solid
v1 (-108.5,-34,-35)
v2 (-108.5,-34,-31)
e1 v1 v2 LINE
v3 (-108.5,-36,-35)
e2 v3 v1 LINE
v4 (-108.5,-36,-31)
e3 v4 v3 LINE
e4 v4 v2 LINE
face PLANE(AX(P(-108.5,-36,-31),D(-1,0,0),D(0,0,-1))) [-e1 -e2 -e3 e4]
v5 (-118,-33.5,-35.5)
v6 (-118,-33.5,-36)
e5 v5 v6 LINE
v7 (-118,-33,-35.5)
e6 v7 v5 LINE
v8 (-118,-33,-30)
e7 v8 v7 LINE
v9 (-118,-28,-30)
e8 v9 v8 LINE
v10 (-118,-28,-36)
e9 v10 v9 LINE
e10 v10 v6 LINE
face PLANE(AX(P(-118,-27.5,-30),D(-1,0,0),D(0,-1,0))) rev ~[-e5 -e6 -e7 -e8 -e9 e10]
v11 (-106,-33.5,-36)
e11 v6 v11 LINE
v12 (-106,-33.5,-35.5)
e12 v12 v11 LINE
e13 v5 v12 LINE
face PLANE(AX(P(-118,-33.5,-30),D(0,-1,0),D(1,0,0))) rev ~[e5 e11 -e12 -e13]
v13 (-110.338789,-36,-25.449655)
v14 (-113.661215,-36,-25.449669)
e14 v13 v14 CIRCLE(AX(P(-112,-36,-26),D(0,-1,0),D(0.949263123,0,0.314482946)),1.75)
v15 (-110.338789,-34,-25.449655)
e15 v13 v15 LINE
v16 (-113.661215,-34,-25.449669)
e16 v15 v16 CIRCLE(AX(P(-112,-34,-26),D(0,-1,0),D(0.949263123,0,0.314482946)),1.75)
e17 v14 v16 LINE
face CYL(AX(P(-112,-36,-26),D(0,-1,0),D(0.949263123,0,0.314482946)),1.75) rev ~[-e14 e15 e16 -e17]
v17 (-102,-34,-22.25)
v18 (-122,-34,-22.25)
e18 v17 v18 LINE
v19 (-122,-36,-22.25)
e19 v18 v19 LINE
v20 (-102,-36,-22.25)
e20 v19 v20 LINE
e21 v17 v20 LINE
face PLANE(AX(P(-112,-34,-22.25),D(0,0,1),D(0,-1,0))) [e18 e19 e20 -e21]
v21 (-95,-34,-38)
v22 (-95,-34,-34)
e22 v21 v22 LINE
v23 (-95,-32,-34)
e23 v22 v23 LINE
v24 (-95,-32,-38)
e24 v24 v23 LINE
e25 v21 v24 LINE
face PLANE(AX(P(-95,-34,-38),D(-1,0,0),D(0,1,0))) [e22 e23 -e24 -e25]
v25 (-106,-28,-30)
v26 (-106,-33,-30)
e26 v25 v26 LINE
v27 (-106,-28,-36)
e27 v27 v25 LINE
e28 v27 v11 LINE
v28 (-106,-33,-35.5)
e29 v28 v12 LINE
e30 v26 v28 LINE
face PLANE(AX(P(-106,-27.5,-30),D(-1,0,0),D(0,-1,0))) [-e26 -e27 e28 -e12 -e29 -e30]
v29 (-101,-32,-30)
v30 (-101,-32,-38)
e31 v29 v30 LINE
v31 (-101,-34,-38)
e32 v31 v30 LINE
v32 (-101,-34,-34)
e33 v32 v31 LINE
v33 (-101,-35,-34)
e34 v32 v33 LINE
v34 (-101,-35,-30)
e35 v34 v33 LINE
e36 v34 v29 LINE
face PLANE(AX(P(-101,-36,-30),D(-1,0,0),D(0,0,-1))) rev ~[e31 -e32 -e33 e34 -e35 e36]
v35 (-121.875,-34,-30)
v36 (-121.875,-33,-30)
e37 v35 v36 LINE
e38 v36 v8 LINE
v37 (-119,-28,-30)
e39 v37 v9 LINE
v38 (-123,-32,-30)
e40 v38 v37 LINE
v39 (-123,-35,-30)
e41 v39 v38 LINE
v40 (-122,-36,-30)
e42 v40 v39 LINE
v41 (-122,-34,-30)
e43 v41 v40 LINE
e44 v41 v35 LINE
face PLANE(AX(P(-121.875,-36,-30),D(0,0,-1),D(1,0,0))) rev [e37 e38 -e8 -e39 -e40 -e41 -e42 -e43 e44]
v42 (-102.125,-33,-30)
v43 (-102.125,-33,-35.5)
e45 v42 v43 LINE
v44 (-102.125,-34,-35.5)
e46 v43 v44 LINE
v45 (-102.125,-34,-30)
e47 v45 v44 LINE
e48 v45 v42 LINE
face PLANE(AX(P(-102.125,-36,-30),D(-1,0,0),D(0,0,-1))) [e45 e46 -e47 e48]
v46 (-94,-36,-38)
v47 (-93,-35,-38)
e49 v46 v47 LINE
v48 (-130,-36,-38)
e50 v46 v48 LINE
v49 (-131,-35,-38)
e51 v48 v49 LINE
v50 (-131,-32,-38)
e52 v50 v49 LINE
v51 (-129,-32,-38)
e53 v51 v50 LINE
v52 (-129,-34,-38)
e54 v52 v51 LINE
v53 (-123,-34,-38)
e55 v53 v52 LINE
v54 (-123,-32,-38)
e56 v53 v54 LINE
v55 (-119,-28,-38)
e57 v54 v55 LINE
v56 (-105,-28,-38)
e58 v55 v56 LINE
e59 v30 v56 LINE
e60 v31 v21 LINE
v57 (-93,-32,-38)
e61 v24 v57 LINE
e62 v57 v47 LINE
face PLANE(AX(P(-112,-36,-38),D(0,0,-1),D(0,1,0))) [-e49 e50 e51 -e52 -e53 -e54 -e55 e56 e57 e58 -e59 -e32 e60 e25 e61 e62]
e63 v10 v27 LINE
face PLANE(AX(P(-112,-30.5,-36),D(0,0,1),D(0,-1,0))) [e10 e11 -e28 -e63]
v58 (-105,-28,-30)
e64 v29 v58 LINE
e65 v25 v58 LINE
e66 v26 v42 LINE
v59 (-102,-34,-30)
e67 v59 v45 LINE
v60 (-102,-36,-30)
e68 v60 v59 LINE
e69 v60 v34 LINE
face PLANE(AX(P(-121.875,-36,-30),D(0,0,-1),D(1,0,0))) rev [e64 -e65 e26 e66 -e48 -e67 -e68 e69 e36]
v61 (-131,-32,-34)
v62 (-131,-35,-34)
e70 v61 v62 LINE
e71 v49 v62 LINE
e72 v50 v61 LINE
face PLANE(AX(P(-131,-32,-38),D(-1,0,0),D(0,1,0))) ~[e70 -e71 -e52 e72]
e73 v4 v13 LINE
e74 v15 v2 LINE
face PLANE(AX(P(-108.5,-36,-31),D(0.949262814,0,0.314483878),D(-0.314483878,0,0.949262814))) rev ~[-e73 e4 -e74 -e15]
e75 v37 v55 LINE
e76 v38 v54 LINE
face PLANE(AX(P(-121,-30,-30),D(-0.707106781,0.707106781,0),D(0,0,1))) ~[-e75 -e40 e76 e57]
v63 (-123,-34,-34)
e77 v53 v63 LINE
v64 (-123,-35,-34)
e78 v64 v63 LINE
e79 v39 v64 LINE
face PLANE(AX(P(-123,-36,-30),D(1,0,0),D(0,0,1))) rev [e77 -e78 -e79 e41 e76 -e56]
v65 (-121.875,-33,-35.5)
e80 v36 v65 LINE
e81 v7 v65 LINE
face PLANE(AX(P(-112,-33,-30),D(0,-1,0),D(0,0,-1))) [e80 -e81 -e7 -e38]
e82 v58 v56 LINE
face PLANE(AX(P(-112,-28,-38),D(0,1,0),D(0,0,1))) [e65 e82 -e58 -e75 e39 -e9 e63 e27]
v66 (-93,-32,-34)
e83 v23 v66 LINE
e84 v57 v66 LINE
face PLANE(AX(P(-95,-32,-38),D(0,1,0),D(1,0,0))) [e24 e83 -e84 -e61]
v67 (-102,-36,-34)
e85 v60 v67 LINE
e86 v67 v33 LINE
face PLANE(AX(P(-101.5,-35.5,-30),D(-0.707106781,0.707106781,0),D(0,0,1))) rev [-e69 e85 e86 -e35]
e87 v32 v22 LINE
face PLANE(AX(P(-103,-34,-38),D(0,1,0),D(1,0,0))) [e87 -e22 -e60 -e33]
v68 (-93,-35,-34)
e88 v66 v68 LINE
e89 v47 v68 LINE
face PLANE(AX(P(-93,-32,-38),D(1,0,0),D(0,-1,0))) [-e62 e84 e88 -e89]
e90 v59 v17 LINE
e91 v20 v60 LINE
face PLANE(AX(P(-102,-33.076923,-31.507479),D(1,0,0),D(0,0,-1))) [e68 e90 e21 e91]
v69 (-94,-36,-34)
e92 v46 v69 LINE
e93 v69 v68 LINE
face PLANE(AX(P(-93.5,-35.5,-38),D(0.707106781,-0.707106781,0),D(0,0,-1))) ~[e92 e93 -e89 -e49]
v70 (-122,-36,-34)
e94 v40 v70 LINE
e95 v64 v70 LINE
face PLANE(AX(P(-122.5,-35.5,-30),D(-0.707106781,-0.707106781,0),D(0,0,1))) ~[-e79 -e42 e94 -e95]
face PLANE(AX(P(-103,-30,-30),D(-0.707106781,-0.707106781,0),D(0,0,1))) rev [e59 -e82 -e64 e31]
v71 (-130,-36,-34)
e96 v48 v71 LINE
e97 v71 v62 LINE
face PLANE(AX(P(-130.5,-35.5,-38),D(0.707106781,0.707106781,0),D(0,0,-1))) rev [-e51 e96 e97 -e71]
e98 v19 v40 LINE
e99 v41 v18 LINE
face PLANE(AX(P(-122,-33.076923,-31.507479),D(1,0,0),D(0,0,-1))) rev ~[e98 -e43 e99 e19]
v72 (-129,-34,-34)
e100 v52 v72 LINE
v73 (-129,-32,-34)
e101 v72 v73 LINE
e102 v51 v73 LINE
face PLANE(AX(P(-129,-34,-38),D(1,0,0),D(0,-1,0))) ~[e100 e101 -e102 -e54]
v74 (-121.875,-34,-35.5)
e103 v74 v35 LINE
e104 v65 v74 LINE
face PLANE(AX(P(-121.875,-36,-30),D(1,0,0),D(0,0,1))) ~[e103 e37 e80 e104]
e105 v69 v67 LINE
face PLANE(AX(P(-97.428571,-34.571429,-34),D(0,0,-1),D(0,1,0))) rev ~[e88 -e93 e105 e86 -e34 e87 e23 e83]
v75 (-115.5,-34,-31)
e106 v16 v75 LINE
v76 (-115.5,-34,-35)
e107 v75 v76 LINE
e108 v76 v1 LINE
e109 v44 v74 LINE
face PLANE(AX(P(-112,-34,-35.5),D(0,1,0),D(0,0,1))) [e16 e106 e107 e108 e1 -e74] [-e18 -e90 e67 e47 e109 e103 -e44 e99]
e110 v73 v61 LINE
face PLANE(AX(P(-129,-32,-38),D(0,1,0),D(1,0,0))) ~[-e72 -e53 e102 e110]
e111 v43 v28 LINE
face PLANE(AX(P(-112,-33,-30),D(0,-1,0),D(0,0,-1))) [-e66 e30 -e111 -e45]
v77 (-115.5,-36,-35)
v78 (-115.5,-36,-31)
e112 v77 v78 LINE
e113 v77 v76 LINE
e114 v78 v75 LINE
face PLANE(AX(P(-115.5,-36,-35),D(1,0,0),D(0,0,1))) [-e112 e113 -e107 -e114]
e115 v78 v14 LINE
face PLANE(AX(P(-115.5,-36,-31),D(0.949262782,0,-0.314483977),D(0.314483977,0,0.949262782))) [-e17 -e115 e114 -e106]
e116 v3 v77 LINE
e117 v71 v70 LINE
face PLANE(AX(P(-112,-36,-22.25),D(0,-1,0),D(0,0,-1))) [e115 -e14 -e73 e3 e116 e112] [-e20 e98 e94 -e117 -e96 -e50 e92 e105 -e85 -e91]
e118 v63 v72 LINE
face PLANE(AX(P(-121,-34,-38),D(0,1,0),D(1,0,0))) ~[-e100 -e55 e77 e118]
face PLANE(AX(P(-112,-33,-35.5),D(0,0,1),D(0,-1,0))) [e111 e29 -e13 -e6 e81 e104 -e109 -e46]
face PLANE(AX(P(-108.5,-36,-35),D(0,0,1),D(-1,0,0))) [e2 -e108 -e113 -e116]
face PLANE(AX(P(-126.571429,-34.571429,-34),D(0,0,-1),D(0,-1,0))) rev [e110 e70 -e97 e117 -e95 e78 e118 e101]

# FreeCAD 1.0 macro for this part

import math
import FreeCAD as App
import Part
import Sketcher

V = App.Vector


def edges_at(feature, points):
    """Names of the edges that pass closest to the given points."""
    edges = feature.Shape.Edges
    near = lambda p: min(range(len(edges)), key=lambda i: edges[i].distToShape(Part.Vertex(*p))[0])
    return sorted({f"Edge{near(p) + 1}" for p in points})


def add_polygon(sketch, points):
    """Adds a closed chain of lines whose ends are joined by coincident constraints."""
    first, n = sketch.GeometryCount, len(points)
    for a, b in zip(points, points[1:] + points[:1]):
        sketch.addGeometry(Part.LineSegment(App.Vector(*a, 0), App.Vector(*b, 0)), False)
    for i in range(n):
        sketch.addConstraint(Sketcher.Constraint("Coincident", first + i, 2, first + (i + 1) % n, 1))

doc = App.newDocument("Part")
body = doc.addObject("PartDesign::Body", "Body")

# Sketch on YZ plane
sketch1 = body.newObject("Sketcher::SketchObject", "Sketch")
sketch1.AttachmentSupport = (doc.getObject("YZ_Plane"), [""])
sketch1.MapMode = "FlatFace"
add_polygon(sketch1, [(-3.25, -21), (-3.25, -23), (12.5, -23), (12.5, -15), (4.5, -15), (4.5, -20), (10, -20), (10, -21)])  # lines 0-7
sketch1.addConstraint(Sketcher.Constraint("Vertical", 0))
sketch1.addConstraint(Sketcher.Constraint("Horizontal", 1))
sketch1.addConstraint(Sketcher.Constraint("Vertical", 2))
sketch1.addConstraint(Sketcher.Constraint("Horizontal", 3))
sketch1.addConstraint(Sketcher.Constraint("Vertical", 4))
sketch1.addConstraint(Sketcher.Constraint("Horizontal", 5))
sketch1.addConstraint(Sketcher.Constraint("Vertical", 6))
sketch1.addConstraint(Sketcher.Constraint("Horizontal", 7))
sketch1.addConstraint(Sketcher.Constraint("Equal", 3, 2))
sketch1.addConstraint(Sketcher.Constraint("DistanceX", 3, 2, 3, 1, 8.0))
sketch1.addConstraint(Sketcher.Constraint("DistanceY", 0, 2, 0, 1, 2.0))
sketch1.addConstraint(Sketcher.Constraint("DistanceY", 4, 2, 4, 1, 5.0))
sketch1.addConstraint(Sketcher.Constraint("DistanceX", 5, 1, 5, 2, 5.5))
sketch1.addConstraint(Sketcher.Constraint("DistanceY", 0, 2, -1, 1, 23.0))
sketch1.addConstraint(Sketcher.Constraint("DistanceX", -1, 1, 5, 2, 10.0))
sketch1.addConstraint(Sketcher.Constraint("DistanceX", 1, 1, 1, 2, 15.75))
pad1 = body.newObject("PartDesign::Pad", "Pad")
pad1.Profile = sketch1
pad1.Length = 20
pad1.Midplane = True

# Sketch on XY plane
sketch2 = body.newObject("Sketcher::SketchObject", "Sketch001")
sketch2.AttachmentSupport = (doc.getObject("XY_Plane"), [""])
sketch2.MapMode = "FlatFace"
sketch2.AttachmentOffset = App.Placement(V(0, 0, -23), App.Rotation())
add_polygon(sketch2, [(11, 4.5), (9.875, 4.5), (9.875, 12.5), (11, 12.5)])  # lines 0-3
sketch2.addConstraint(Sketcher.Constraint("Horizontal", 0))
sketch2.addConstraint(Sketcher.Constraint("Vertical", 1))
sketch2.addConstraint(Sketcher.Constraint("Horizontal", 2))
sketch2.addConstraint(Sketcher.Constraint("Vertical", 3))
sketch2.addConstraint(Sketcher.Constraint("DistanceY", 1, 1, 1, 2, 8.0))
sketch2.addConstraint(Sketcher.Constraint("DistanceX", -1, 1, 2, 2, 11.0))
sketch2.addConstraint(Sketcher.Constraint("DistanceY", -1, 1, 0, 2, 4.5))
sketch2.addConstraint(Sketcher.Constraint("DistanceX", 0, 2, 0, 1, 1.125))
pad2 = body.newObject("PartDesign::Pad", "Pad001")
pad2.Profile = sketch2
pad2.Length = 8
doc.recompute()

mirrored = body.newObject("PartDesign::Mirrored", "Mirrored")
mirrored.Originals = [pad2]
mirrored.MirrorPlane = (doc.getObject("YZ_Plane"), [""])
body.Tip = mirrored

# Sketch on XZ plane
sketch3 = body.newObject("Sketcher::SketchObject", "Sketch002")
sketch3.AttachmentSupport = (doc.getObject("XZ_Plane"), [""])
sketch3.MapMode = "FlatFace"
sketch3.AttachmentOffset = App.Placement(V(0, 0, -4.5), App.Rotation())
add_polygon(sketch3, [(6, -14.5), (-6, -14.5), (-6, -20.5), (6, -20.5)])  # lines 0-3
sketch3.addConstraint(Sketcher.Constraint("Horizontal", 0))
sketch3.addConstraint(Sketcher.Constraint("Vertical", 1))
sketch3.addConstraint(Sketcher.Constraint("Horizontal", 2))
sketch3.addConstraint(Sketcher.Constraint("Vertical", 3))
sketch3.addConstraint(Sketcher.Constraint("DistanceX", 0, 2, 0, 1, 12.0))
sketch3.addConstraint(Sketcher.Constraint("DistanceY", 1, 2, 1, 1, 6.0))
sketch3.addConstraint(Sketcher.Constraint("DistanceX", 0, 2, -1, 1, 6.0))
sketch3.addConstraint(Sketcher.Constraint("DistanceY", 0, 2, -1, 1, 14.5))
pocket1 = body.newObject("PartDesign::Pocket", "Pocket")
pocket1.Profile = sketch3
pocket1.Length = 6

# Sketch on XY plane
sketch4 = body.newObject("Sketcher::SketchObject", "Sketch003")
sketch4.AttachmentSupport = (doc.getObject("XY_Plane"), [""])
sketch4.MapMode = "FlatFace"
sketch4.AttachmentOffset = App.Placement(V(0, 0, -23), App.Rotation())
sketch4.addGeometry(Part.LineSegment(V(3.5, 9.5, 0), V(3.5, 5.5, 0)), False)
sketch4.addGeometry(Part.LineSegment(V(3.5, 5.5, 0), V(1.661211, -0.050345, 0)), False)
sketch4.addGeometry(Part.ArcOfCircle(Part.Circle(V(0, 0.5, 0), V(0, 0, 1), 1.75), math.radians(-161.67088), math.radians(-18.329603)), False)
sketch4.addGeometry(Part.LineSegment(V(-1.661215, -0.050331, 0), V(-3.5, 5.5, 0)), False)
sketch4.addGeometry(Part.LineSegment(V(-3.5, 5.5, 0), V(-3.5, 9.5, 0)), False)
sketch4.addGeometry(Part.LineSegment(V(-3.5, 9.5, 0), V(3.5, 9.5, 0)), False)
sketch4.addConstraint(Sketcher.Constraint("Coincident", 0, 2, 1, 1))
sketch4.addConstraint(Sketcher.Constraint("Tangent", 1, 2, 2, 2))
sketch4.addConstraint(Sketcher.Constraint("Coincident", 2, 1, 3, 1))
sketch4.addConstraint(Sketcher.Constraint("Coincident", 3, 2, 4, 1))
sketch4.addConstraint(Sketcher.Constraint("Coincident", 4, 2, 5, 1))
sketch4.addConstraint(Sketcher.Constraint("Coincident", 5, 2, 0, 1))
sketch4.addConstraint(Sketcher.Constraint("Vertical", 0))
sketch4.addConstraint(Sketcher.Constraint("Vertical", 4))
sketch4.addConstraint(Sketcher.Constraint("Horizontal", 5))
sketch4.addConstraint(Sketcher.Constraint("Symmetric", 0, 2, 3, 2, -2))
sketch4.addConstraint(Sketcher.Constraint("PointOnObject", 2, 3, -2))
sketch4.addConstraint(Sketcher.Constraint("DistanceX", 5, 1, 5, 2, 7.0))
sketch4.addConstraint(Sketcher.Constraint("DistanceY", 0, 2, 0, 1, 4.0))
sketch4.addConstraint(Sketcher.Constraint("Radius", 2, 1.75))
sketch4.addConstraint(Sketcher.Constraint("DistanceY", 2, 3, 0, 2, 5.0))
sketch4.addConstraint(Sketcher.Constraint("DistanceY", -1, 1, 2, 3, 0.5))
sketch4.addConstraint(Sketcher.Constraint("Distance", 3, 5.846991))
pocket2 = body.newObject("PartDesign::Pocket", "Pocket001")
pocket2.Profile = sketch4
pocket2.Length = 5
pocket2.Reversed = True
doc.recompute()

chamfer = body.newObject("PartDesign::Chamfer", "Chamfer")
chamfer.Base = (pocket2, edges_at(pocket2, [(11, 8.5, -23), (-11, 8.5, -23)]))
chamfer.Size = 1
doc.recompute()

chamfer2 = body.newObject("PartDesign::Chamfer", "Chamfer001")
chamfer2.Base = (chamfer, edges_at(chamfer, [(-11, 8.5, -15), (11, 8.5, -15)]))
chamfer2.Size = 4

# Sketch on XZ plane
sketch5 = body.newObject("Sketcher::SketchObject", "Sketch004")
sketch5.AttachmentSupport = (doc.getObject("XZ_Plane"), [""])
sketch5.MapMode = "FlatFace"
sketch5.AttachmentOffset = App.Placement(V(0, 0, -12.5), App.Rotation())
add_polygon(sketch5, [(9, -23), (9, -21), (17, -21), (17, -19), (19, -19), (19, -23)])  # lines 0-5
sketch5.addConstraint(Sketcher.Constraint("Vertical", 0))
sketch5.addConstraint(Sketcher.Constraint("Horizontal", 1))
sketch5.addConstraint(Sketcher.Constraint("Vertical", 2))
sketch5.addConstraint(Sketcher.Constraint("Horizontal", 3))
sketch5.addConstraint(Sketcher.Constraint("Vertical", 4))
sketch5.addConstraint(Sketcher.Constraint("Horizontal", 5))
sketch5.addConstraint(Sketcher.Constraint("Equal", 3, 0))
sketch5.addConstraint(Sketcher.Constraint("Equal", 0, 2))
sketch5.addConstraint(Sketcher.Constraint("DistanceX", 1, 1, 1, 2, 8.0))
sketch5.addConstraint(Sketcher.Constraint("DistanceX", 3, 1, 3, 2, 2.0))
sketch5.addConstraint(Sketcher.Constraint("DistanceX", -1, 1, 0, 2, 9.0))
sketch5.addConstraint(Sketcher.Constraint("DistanceY", 0, 2, -1, 1, 21.0))
pad3 = body.newObject("PartDesign::Pad", "Pad002")
pad3.Profile = sketch5
pad3.Length = 4
doc.recompute()

mirrored2 = body.newObject("PartDesign::Mirrored", "Mirrored001")
mirrored2.Originals = [pad3]
mirrored2.MirrorPlane = (doc.getObject("YZ_Plane"), [""])
body.Tip = mirrored2
doc.recompute()

chamfer3 = body.newObject("PartDesign::Chamfer", "Chamfer002")
chamfer3.Base = (mirrored2, edges_at(mirrored2, [(-19, 10.5, -23), (19, 10.5, -23)]))
chamfer3.Size = 1
body2 = doc.addObject("PartDesign::Body", "Body001")
doc.recompute()

body.Placement = App.Placement(V(0, 0, 0), App.Rotation(V(1, 0, 0), 270))
boolean = body2.newObject("PartDesign::Boolean", "Boolean")
boolean.Type = "Fuse"
boolean.addObjects([body])
body3 = doc.addObject("PartDesign::Body", "Body002")
doc.recompute()

body2.Placement = App.Placement(V(-112, -13, -25.5), App.Rotation(V(0, 0, 1), 0))
boolean2 = body3.newObject("PartDesign::Boolean", "Boolean001")
boolean2.Type = "Fuse"
boolean2.addObjects([body2])

doc.recompute()
